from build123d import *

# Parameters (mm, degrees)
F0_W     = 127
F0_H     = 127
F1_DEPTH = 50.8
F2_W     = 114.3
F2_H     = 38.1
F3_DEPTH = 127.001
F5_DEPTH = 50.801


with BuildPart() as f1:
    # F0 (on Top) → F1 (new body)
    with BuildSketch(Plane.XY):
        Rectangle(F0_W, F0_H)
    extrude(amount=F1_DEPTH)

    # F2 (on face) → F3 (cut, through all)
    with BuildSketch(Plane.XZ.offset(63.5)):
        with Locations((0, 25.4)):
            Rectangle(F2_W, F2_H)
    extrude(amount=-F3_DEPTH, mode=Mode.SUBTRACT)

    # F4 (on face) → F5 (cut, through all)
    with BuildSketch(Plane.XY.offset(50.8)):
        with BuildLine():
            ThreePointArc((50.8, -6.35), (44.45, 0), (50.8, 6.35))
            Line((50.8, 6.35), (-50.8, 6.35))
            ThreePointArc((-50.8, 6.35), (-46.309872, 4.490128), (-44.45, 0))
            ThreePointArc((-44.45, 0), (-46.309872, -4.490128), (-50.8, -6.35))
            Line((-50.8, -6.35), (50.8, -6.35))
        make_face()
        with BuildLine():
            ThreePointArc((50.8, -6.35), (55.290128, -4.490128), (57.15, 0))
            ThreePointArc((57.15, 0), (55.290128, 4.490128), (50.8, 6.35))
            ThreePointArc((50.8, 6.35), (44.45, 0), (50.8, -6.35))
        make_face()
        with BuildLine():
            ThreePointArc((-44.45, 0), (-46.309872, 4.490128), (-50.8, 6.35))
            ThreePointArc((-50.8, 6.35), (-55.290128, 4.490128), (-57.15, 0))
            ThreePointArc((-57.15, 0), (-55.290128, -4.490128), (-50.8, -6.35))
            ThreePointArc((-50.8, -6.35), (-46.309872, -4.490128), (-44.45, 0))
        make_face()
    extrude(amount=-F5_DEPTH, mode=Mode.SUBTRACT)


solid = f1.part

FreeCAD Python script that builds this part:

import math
import FreeCAD as App
import Part
import Sketcher

V = App.Vector
Q = App.Units.Quantity


def add_polygon(sketch, points):
    """Adds a closed chain of lines whose ends are joined by coincident constraints."""
    first, n = sketch.GeometryCount, len(points)
    for a, b in zip(points, points[1:] + points[:1]):
        sketch.addGeometry(Part.LineSegment(App.Vector(*a, 0), App.Vector(*b, 0)), False)
    for i in range(n):
        sketch.addConstraint(Sketcher.Constraint("Coincident", first + i, 2, first + (i + 1) % n, 1))

doc = App.newDocument("Part")
params = doc.addObject("Spreadsheet::Sheet", "Params")
for row, (alias, value) in enumerate([
    ("sketch1_width", "5 in"),
    ("pad1_length", "2 in"),
    ("sketch2_width", "4.5 in"),
    ("sketch2_height", "1.5 in"),
    ("sketch3_width", "4 in"),
    ("sketch3_radius", "0.25 in"),
], start=1):
    params.set(f"A{row}", alias)
    params.set(f"B{row}", "=" + value)
    params.setAlias(f"B{row}", alias)

body = doc.addObject("PartDesign::Body", "Body")

sketch1 = body.newObject("Sketcher::SketchObject", "Sketch")
sketch1.AttachmentSupport = (doc.getObject("XY_Plane"), [""])
sketch1.MapMode = "FlatFace"
add_polygon(sketch1, [(-64, 64), (-64, -64), (64, -64), (64, 64)])
sketch1.addConstraint(Sketcher.Constraint("Vertical", 0))
sketch1.addConstraint(Sketcher.Constraint("Horizontal", 1))
sketch1.addConstraint(Sketcher.Constraint("Vertical", 2))
sketch1.addConstraint(Sketcher.Constraint("Horizontal", 3))
sketch1.addConstraint(Sketcher.Constraint("Symmetric", 0, 2, 2, 2, -1, 1))
sketch1.addConstraint(Sketcher.Constraint("Equal", 3, 0))
sketch1.addConstraint(Sketcher.Constraint("DistanceX", 1, 1, 1, 2, Q("5 in")))
sketch1.setExpression("Constraints[10]", "Params.sketch1_width")
pad1 = body.newObject("PartDesign::Pad", "Pad")
pad1.Profile = sketch1
pad1.setExpression("Length", "Params.pad1_length")

sketch2 = body.newObject("Sketcher::SketchObject", "Sketch001")
sketch2.AttachmentSupport = (doc.getObject("XZ_Plane"), [""])
sketch2.MapMode = "FlatFace"
sketch2.AttachmentOffset = App.Placement(V(0, 0, 2.5 * 25.4), App.Rotation())
add_polygon(sketch2, [(-57, 44), (-57, 6), (57, 6), (57, 44)])
sketch2.addConstraint(Sketcher.Constraint("Vertical", 0))
sketch2.addConstraint(Sketcher.Constraint("Horizontal", 1))
sketch2.addConstraint(Sketcher.Constraint("Vertical", 2))
sketch2.addConstraint(Sketcher.Constraint("Horizontal", 3))
sketch2.addConstraint(Sketcher.Constraint("DistanceX", 1, 1, 1, 2, Q("4.5 in")))
sketch2.addConstraint(Sketcher.Constraint("DistanceY", 0, 2, 0, 1, Q("1.5 in")))
sketch2.addConstraint(Sketcher.Constraint("DistanceX", 0, 2, -1, 1, Q("2.25 in")))
sketch2.addConstraint(Sketcher.Constraint("DistanceY", -1, 1, 0, 2, Q("0.25 in")))
sketch2.setExpression("Constraints[8]", "Params.sketch2_width")
sketch2.setExpression("Constraints[9]", "Params.sketch2_height")
pocket1 = body.newObject("PartDesign::Pocket", "Pocket")
pocket1.Profile = sketch2
pocket1.Type = "ThroughAll"

sketch3 = body.newObject("Sketcher::SketchObject", "Sketch002")
sketch3.AttachmentSupport = (doc.getObject("XY_Plane"), [""])
sketch3.MapMode = "FlatFace"
sketch3.AttachmentOffset = App.Placement(V(0, 0, 2 * 25.4), App.Rotation())
sketch3.addGeometry(Part.LineSegment(V(51, 6, 0), V(-51, 6, 0)), False)
sketch3.addGeometry(Part.ArcOfCircle(Part.Circle(V(-51, 0, 0), V(0, 0, 1), 6), math.radians(90), math.radians(180)), False)
sketch3.addGeometry(Part.ArcOfCircle(Part.Circle(V(-51, 0, 0), V(0, 0, 1), 6), math.radians(-180), math.radians(-90)), False)
sketch3.addGeometry(Part.LineSegment(V(-51, -6, 0), V(51, -6, 0)), False)
sketch3.addGeometry(Part.ArcOfCircle(Part.Circle(V(51, 0, 0), V(0, 0, 1), 6), math.radians(-90), math.radians(0)), False)
sketch3.addGeometry(Part.ArcOfCircle(Part.Circle(V(51, 0, 0), V(0, 0, 1), 6), math.radians(0), math.radians(90)), False)
sketch3.addConstraint(Sketcher.Constraint("Tangent", 0, 2, 1, 1))
sketch3.addConstraint(Sketcher.Constraint("Tangent", 1, 2, 2, 1))
sketch3.addConstraint(Sketcher.Constraint("Tangent", 2, 2, 3, 1))
sketch3.addConstraint(Sketcher.Constraint("Tangent", 3, 2, 4, 1))
sketch3.addConstraint(Sketcher.Constraint("Tangent", 4, 2, 5, 1))
sketch3.addConstraint(Sketcher.Constraint("Tangent", 5, 2, 0, 1))
sketch3.addConstraint(Sketcher.Constraint("Horizontal", 0))
sketch3.addConstraint(Sketcher.Constraint("Horizontal", 3))
sketch3.addConstraint(Sketcher.Constraint("Equal", 1, 2))
sketch3.addConstraint(Sketcher.Constraint("Equal", 2, 4))
sketch3.addConstraint(Sketcher.Constraint("Symmetric", 1, 3, 4, 3, -1, 1))
sketch3.addConstraint(Sketcher.Constraint("PointOnObject", 1, 2, -1))
sketch3.addConstraint(Sketcher.Constraint("PointOnObject", 4, 2, -1))
sketch3.addConstraint(Sketcher.Constraint("DistanceX", 0, 2, 0, 1, Q("4 in")))
sketch3.addConstraint(Sketcher.Constraint("Radius", 1, Q("0.25 in")))
sketch3.setExpression("Constraints[13]", "Params.sketch3_width")
sketch3.setExpression("Constraints[14]", "Params.sketch3_radius")
pocket2 = body.newObject("PartDesign::Pocket", "Pocket001")
pocket2.Profile = sketch3
pocket2.Type = "ThroughAll"

doc.recompute()
